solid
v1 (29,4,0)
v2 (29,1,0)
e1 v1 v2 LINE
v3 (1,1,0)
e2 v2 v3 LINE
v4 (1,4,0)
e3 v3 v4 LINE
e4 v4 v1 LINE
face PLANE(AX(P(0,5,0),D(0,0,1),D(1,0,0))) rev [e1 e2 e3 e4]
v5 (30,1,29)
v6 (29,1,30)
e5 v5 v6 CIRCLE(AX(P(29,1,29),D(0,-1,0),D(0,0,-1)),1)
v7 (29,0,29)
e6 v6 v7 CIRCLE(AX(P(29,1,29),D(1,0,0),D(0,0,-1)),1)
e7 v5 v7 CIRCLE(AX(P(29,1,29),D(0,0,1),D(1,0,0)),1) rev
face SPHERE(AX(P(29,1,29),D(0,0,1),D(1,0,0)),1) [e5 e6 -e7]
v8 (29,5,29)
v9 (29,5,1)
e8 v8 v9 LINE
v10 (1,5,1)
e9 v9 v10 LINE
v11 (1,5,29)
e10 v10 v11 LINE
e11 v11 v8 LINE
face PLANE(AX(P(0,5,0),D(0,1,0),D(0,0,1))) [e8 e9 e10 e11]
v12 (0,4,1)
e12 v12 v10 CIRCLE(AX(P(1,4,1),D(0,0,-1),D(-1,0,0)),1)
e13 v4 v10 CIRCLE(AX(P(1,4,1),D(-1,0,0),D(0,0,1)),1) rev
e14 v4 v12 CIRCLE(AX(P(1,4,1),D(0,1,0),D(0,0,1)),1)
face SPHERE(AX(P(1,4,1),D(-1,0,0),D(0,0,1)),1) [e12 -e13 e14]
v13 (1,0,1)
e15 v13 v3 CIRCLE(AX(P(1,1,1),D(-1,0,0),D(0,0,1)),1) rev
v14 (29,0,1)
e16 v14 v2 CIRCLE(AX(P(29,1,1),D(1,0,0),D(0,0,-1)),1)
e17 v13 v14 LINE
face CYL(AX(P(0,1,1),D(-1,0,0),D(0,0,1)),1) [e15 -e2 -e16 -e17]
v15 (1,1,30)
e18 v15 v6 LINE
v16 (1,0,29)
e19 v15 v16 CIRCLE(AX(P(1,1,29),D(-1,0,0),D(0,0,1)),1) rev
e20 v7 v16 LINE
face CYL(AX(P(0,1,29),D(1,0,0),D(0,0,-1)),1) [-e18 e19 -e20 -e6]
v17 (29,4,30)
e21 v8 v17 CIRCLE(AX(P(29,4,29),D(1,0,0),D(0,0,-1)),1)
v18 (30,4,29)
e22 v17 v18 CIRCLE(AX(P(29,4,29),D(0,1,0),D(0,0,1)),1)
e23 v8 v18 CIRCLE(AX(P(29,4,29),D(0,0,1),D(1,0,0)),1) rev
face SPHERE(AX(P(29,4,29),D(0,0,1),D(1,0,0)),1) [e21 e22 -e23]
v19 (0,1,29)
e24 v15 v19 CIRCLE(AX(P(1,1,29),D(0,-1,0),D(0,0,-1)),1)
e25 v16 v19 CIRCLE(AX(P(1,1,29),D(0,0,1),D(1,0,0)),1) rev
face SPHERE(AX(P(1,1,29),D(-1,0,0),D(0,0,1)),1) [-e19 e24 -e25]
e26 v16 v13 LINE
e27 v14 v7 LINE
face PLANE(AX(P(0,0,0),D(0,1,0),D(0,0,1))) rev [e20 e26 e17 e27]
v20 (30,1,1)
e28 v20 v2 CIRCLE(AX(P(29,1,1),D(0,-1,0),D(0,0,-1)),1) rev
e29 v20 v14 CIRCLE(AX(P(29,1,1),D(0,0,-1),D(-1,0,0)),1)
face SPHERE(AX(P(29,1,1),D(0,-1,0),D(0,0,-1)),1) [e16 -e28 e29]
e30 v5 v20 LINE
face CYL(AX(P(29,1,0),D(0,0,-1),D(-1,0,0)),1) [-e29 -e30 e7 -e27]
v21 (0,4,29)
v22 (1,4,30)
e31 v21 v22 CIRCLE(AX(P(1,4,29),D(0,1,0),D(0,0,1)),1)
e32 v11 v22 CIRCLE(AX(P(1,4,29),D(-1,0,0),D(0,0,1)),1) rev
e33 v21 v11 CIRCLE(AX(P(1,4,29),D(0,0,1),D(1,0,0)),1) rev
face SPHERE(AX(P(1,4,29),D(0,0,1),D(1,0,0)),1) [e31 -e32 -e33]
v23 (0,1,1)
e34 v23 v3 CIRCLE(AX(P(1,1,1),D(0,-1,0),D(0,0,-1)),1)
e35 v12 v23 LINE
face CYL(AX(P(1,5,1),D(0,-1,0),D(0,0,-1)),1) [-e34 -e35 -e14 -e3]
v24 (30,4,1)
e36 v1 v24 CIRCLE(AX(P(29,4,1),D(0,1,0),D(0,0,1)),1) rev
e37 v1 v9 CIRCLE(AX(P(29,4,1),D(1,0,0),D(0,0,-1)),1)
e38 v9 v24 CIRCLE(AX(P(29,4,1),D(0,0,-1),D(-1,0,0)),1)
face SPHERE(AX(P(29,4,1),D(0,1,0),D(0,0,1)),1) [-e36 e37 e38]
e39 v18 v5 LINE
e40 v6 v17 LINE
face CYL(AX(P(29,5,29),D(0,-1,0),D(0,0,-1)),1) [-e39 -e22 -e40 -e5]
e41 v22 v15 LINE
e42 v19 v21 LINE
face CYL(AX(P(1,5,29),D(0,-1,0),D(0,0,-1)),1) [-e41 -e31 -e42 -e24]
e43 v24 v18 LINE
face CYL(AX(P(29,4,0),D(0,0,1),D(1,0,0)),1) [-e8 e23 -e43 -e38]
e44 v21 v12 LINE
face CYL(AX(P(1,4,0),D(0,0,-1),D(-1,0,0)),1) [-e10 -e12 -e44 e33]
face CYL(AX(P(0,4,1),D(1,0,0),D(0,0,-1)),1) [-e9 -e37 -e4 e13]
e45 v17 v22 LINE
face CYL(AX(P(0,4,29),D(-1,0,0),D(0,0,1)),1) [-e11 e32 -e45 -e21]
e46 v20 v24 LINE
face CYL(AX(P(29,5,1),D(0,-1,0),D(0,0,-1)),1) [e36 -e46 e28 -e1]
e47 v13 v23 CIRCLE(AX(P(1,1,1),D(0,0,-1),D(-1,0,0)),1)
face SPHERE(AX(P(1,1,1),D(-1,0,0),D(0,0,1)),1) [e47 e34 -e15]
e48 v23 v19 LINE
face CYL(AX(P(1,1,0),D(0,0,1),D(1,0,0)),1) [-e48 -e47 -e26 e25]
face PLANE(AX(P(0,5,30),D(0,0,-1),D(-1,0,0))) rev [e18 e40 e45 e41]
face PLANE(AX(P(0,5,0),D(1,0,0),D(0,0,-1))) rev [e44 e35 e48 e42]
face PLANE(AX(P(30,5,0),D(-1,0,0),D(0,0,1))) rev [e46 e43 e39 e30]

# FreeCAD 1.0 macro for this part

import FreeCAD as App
import Part
import Sketcher

V = App.Vector
Q = App.Units.Quantity

doc = App.newDocument("Part")
params = doc.addObject("Spreadsheet::Sheet", "Params")
for row, (alias, value) in enumerate([
    ("sketch1_width", "30 mm"),
    ("pad1_length", "5 mm"),
    ("fillet_radius", "1 mm"),
], start=1):
    params.set(f"A{row}", alias)
    params.set(f"B{row}", "=" + value)
    params.setAlias(f"B{row}", alias)

body = doc.addObject("PartDesign::Body", "Body")

sketch1 = body.newObject("Sketcher::SketchObject", "Sketch")
sketch1.AttachmentSupport = (doc.getObject("XZ_Plane"), [""])
sketch1.MapMode = "FlatFace"
sketch1.addGeometry(Part.LineSegment(V(0, 0, 0), V(0, 30, 0)), False)
sketch1.addGeometry(Part.LineSegment(V(0, 30, 0), V(30, 30, 0)), False)
sketch1.addGeometry(Part.LineSegment(V(30, 30, 0), V(30, 0, 0)), False)
sketch1.addGeometry(Part.LineSegment(V(30, 0, 0), V(0, 0, 0)), False)
sketch1.addConstraint(Sketcher.Constraint("Coincident", 0, 2, 1, 1))
sketch1.addConstraint(Sketcher.Constraint("Coincident", 1, 2, 2, 1))
sketch1.addConstraint(Sketcher.Constraint("Coincident", 2, 2, 3, 1))
sketch1.addConstraint(Sketcher.Constraint("Coincident", 3, 2, 0, 1))
sketch1.addConstraint(Sketcher.Constraint("Vertical", 0))
sketch1.addConstraint(Sketcher.Constraint("Horizontal", 1))
sketch1.addConstraint(Sketcher.Constraint("Vertical", 2))
sketch1.addConstraint(Sketcher.Constraint("Horizontal", 3))
sketch1.addConstraint(Sketcher.Constraint("Coincident", 3, 2, -1, 1))
sketch1.addConstraint(Sketcher.Constraint("Equal", 3, 0))
sketch1.addConstraint(Sketcher.Constraint("DistanceX", 1, 1, 1, 2, Q("30 mm")))
sketch1.setExpression("Constraints[10]", "Params.sketch1_width")
pad1 = body.newObject("PartDesign::Pad", "Pad")
pad1.Profile = sketch1
pad1.setExpression("Length", "Params.pad1_length")
pad1.Reversed = True
doc.recompute()

fillet = body.newObject("PartDesign::Fillet", "Fillet")
fillet.Base = (pad1, ["Edge1"])
fillet.UseAllEdges = True
fillet.setExpression("Radius", "Params.fillet_radius")

doc.recompute()
